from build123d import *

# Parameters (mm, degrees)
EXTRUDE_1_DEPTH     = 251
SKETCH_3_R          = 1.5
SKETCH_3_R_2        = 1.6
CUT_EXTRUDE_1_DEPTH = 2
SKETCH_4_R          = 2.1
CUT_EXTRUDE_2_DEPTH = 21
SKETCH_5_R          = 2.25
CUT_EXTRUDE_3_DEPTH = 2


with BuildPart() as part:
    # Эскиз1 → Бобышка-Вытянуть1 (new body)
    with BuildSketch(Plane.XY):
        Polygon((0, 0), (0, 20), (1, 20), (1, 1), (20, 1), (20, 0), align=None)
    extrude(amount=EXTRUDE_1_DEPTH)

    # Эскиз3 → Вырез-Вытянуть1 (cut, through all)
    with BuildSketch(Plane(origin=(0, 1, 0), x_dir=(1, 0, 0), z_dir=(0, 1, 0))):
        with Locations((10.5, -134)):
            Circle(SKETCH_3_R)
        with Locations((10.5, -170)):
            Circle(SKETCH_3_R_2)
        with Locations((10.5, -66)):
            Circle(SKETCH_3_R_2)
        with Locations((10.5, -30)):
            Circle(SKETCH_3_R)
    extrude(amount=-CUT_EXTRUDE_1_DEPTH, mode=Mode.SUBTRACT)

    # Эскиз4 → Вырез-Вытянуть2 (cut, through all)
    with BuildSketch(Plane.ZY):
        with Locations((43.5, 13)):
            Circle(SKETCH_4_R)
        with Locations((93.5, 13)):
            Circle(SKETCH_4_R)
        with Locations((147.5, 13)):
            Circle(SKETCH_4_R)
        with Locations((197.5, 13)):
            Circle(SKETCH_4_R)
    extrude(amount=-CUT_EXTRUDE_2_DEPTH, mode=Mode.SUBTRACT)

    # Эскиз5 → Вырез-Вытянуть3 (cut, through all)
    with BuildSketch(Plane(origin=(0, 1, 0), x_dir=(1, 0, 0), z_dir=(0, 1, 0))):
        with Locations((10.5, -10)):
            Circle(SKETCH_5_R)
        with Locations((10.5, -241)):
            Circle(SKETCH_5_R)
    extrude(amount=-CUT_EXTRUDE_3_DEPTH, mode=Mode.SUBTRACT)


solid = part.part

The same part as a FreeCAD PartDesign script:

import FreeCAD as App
import Part
import Sketcher

V = App.Vector

doc = App.newDocument("Part")
body = doc.addObject("PartDesign::Body", "Body")

# Sketch on XY plane
sketch1 = body.newObject("Sketcher::SketchObject", "Sketch")
sketch1.AttachmentSupport = (doc.getObject("XY_Plane"), [""])
sketch1.MapMode = "FlatFace"
sketch1.addGeometry(Part.LineSegment(V(0, 20, 0), V(0, 0, 0)), False)
sketch1.addGeometry(Part.LineSegment(V(0, 0, 0), V(20, 0, 0)), False)
sketch1.addGeometry(Part.LineSegment(V(20, 0, 0), V(20, 1, 0)), False)
sketch1.addGeometry(Part.LineSegment(V(20, 1, 0), V(1, 1, 0)), False)
sketch1.addGeometry(Part.LineSegment(V(1, 1, 0), V(1, 20, 0)), False)
sketch1.addGeometry(Part.LineSegment(V(1, 20, 0), V(0, 20, 0)), False)
sketch1.addConstraint(Sketcher.Constraint("Coincident", 0, 2, 1, 1))
sketch1.addConstraint(Sketcher.Constraint("Coincident", 1, 2, 2, 1))
sketch1.addConstraint(Sketcher.Constraint("Coincident", 2, 2, 3, 1))
sketch1.addConstraint(Sketcher.Constraint("Coincident", 3, 2, 4, 1))
sketch1.addConstraint(Sketcher.Constraint("Coincident", 4, 2, 5, 1))
sketch1.addConstraint(Sketcher.Constraint("Coincident", 5, 2, 0, 1))
sketch1.addConstraint(Sketcher.Constraint("Vertical", 0))
sketch1.addConstraint(Sketcher.Constraint("Horizontal", 1))
sketch1.addConstraint(Sketcher.Constraint("Vertical", 2))
sketch1.addConstraint(Sketcher.Constraint("Horizontal", 3))
sketch1.addConstraint(Sketcher.Constraint("Vertical", 4))
sketch1.addConstraint(Sketcher.Constraint("Horizontal", 5))
sketch1.addConstraint(Sketcher.Constraint("Coincident", 0, 2, -1, 1))
sketch1.addConstraint(Sketcher.Constraint("Equal", 1, 0))
sketch1.addConstraint(Sketcher.Constraint("Equal", 5, 2))
sketch1.addConstraint(Sketcher.Constraint("DistanceX", 1, 1, 1, 2, 20.0))
sketch1.addConstraint(Sketcher.Constraint("DistanceX", 3, 2, 3, 1, 19.0))
pad1 = body.newObject("PartDesign::Pad", "Pad")
pad1.Profile = sketch1
pad1.Length = 251

# Sketch on XZ plane
sketch2 = body.newObject("Sketcher::SketchObject", "Sketch001")
sketch2.AttachmentSupport = (doc.getObject("XZ_Plane"), [""])
sketch2.MapMode = "FlatFace"
sketch2.AttachmentOffset = App.Placement(V(0, 0, -1), App.Rotation())
sketch2.addGeometry(Part.Circle(V(10.5, 134, 0), V(0, 0, 1), 1.5), False)
sketch2.addGeometry(Part.Circle(V(10.5, 170, 0), V(0, 0, 1), 1.6), False)
sketch2.addGeometry(Part.Circle(V(10.5, 66, 0), V(0, 0, 1), 1.6), False)
sketch2.addGeometry(Part.Circle(V(10.5, 30, 0), V(0, 0, 1), 1.5), False)
sketch2.addConstraint(Sketcher.Constraint("Equal", 1, 2))
sketch2.addConstraint(Sketcher.Constraint("Equal", 0, 3))
sketch2.addConstraint(Sketcher.Constraint("Vertical", 0, 3, 1, 3))
sketch2.addConstraint(Sketcher.Constraint("Vertical", 1, 3, 2, 3))
sketch2.addConstraint(Sketcher.Constraint("Vertical", 2, 3, 3, 3))
sketch2.addConstraint(Sketcher.Constraint("Diameter", 0, 3.0))
sketch2.addConstraint(Sketcher.Constraint("Diameter", 1, 3.2))
sketch2.addConstraint(Sketcher.Constraint("DistanceY", -1, 1, 0, 3, 134.0))
sketch2.addConstraint(Sketcher.Constraint("DistanceY", -1, 1, 1, 3, 170.0))
sketch2.addConstraint(Sketcher.Constraint("DistanceY", -1, 1, 2, 3, 66.0))
sketch2.addConstraint(Sketcher.Constraint("DistanceY", -1, 1, 3, 3, 30.0))
sketch2.addConstraint(Sketcher.Constraint("DistanceX", -1, 1, 0, 3, 10.5))
pocket1 = body.newObject("PartDesign::Pocket", "Pocket")
pocket1.Profile = sketch2
pocket1.Type = "ThroughAll"
pocket1.Reversed = True

# Sketch on YZ plane
sketch3 = body.newObject("Sketcher::SketchObject", "Sketch002")
sketch3.AttachmentSupport = (doc.getObject("YZ_Plane"), [""])
sketch3.MapMode = "FlatFace"
sketch3.addGeometry(Part.Circle(V(13, 43.5, 0), V(0, 0, 1), 2.1), False)
sketch3.addGeometry(Part.Circle(V(13, 93.5, 0), V(0, 0, 1), 2.1), False)
sketch3.addGeometry(Part.Circle(V(13, 147.5, 0), V(0, 0, 1), 2.1), False)
sketch3.addGeometry(Part.Circle(V(13, 197.5, 0), V(0, 0, 1), 2.1), False)
sketch3.addConstraint(Sketcher.Constraint("Equal", 0, 1))
sketch3.addConstraint(Sketcher.Constraint("Equal", 1, 2))
sketch3.addConstraint(Sketcher.Constraint("Equal", 2, 3))
sketch3.addConstraint(Sketcher.Constraint("Vertical", 0, 3, 1, 3))
sketch3.addConstraint(Sketcher.Constraint("Vertical", 1, 3, 2, 3))
sketch3.addConstraint(Sketcher.Constraint("Vertical", 2, 3, 3, 3))
sketch3.addConstraint(Sketcher.Constraint("Diameter", 0, 4.2))
sketch3.addConstraint(Sketcher.Constraint("DistanceX", -1, 1, 0, 3, 13.0))
sketch3.addConstraint(Sketcher.Constraint("DistanceY", 0, 3, 1, 3, 50.0))
sketch3.addConstraint(Sketcher.Constraint("DistanceY", 1, 3, 2, 3, 54.0))
sketch3.addConstraint(Sketcher.Constraint("DistanceY", 2, 3, 3, 3, 50.0))
sketch3.addConstraint(Sketcher.Constraint("DistanceY", -1, 1, 0, 3, 43.5))
pocket2 = body.newObject("PartDesign::Pocket", "Pocket001")
pocket2.Profile = sketch3
pocket2.Type = "ThroughAll"
pocket2.Reversed = True

# Sketch on XZ plane
sketch4 = body.newObject("Sketcher::SketchObject", "Sketch003")
sketch4.AttachmentSupport = (doc.getObject("XZ_Plane"), [""])
sketch4.MapMode = "FlatFace"
sketch4.AttachmentOffset = App.Placement(V(0, 0, -1), App.Rotation())
sketch4.addGeometry(Part.Circle(V(10.5, 10, 0), V(0, 0, 1), 2.2), False)
sketch4.addGeometry(Part.Circle(V(10.5, 241, 0), V(0, 0, 1), 2.2), False)
sketch4.addConstraint(Sketcher.Constraint("Equal", 0, 1))
sketch4.addConstraint(Sketcher.Constraint("Vertical", 0, 3, 1, 3))
sketch4.addConstraint(Sketcher.Constraint("Diameter", 0, 4.5))
sketch4.addConstraint(Sketcher.Constraint("DistanceY", -1, 1, 0, 3, 10.0))
sketch4.addConstraint(Sketcher.Constraint("DistanceY", -1, 1, 1, 3, 241.0))
sketch4.addConstraint(Sketcher.Constraint("DistanceX", -1, 1, 0, 3, 10.5))
pocket3 = body.newObject("PartDesign::Pocket", "Pocket002")
pocket3.Profile = sketch4
pocket3.Type = "ThroughAll"
pocket3.Reversed = True

doc.recompute()
